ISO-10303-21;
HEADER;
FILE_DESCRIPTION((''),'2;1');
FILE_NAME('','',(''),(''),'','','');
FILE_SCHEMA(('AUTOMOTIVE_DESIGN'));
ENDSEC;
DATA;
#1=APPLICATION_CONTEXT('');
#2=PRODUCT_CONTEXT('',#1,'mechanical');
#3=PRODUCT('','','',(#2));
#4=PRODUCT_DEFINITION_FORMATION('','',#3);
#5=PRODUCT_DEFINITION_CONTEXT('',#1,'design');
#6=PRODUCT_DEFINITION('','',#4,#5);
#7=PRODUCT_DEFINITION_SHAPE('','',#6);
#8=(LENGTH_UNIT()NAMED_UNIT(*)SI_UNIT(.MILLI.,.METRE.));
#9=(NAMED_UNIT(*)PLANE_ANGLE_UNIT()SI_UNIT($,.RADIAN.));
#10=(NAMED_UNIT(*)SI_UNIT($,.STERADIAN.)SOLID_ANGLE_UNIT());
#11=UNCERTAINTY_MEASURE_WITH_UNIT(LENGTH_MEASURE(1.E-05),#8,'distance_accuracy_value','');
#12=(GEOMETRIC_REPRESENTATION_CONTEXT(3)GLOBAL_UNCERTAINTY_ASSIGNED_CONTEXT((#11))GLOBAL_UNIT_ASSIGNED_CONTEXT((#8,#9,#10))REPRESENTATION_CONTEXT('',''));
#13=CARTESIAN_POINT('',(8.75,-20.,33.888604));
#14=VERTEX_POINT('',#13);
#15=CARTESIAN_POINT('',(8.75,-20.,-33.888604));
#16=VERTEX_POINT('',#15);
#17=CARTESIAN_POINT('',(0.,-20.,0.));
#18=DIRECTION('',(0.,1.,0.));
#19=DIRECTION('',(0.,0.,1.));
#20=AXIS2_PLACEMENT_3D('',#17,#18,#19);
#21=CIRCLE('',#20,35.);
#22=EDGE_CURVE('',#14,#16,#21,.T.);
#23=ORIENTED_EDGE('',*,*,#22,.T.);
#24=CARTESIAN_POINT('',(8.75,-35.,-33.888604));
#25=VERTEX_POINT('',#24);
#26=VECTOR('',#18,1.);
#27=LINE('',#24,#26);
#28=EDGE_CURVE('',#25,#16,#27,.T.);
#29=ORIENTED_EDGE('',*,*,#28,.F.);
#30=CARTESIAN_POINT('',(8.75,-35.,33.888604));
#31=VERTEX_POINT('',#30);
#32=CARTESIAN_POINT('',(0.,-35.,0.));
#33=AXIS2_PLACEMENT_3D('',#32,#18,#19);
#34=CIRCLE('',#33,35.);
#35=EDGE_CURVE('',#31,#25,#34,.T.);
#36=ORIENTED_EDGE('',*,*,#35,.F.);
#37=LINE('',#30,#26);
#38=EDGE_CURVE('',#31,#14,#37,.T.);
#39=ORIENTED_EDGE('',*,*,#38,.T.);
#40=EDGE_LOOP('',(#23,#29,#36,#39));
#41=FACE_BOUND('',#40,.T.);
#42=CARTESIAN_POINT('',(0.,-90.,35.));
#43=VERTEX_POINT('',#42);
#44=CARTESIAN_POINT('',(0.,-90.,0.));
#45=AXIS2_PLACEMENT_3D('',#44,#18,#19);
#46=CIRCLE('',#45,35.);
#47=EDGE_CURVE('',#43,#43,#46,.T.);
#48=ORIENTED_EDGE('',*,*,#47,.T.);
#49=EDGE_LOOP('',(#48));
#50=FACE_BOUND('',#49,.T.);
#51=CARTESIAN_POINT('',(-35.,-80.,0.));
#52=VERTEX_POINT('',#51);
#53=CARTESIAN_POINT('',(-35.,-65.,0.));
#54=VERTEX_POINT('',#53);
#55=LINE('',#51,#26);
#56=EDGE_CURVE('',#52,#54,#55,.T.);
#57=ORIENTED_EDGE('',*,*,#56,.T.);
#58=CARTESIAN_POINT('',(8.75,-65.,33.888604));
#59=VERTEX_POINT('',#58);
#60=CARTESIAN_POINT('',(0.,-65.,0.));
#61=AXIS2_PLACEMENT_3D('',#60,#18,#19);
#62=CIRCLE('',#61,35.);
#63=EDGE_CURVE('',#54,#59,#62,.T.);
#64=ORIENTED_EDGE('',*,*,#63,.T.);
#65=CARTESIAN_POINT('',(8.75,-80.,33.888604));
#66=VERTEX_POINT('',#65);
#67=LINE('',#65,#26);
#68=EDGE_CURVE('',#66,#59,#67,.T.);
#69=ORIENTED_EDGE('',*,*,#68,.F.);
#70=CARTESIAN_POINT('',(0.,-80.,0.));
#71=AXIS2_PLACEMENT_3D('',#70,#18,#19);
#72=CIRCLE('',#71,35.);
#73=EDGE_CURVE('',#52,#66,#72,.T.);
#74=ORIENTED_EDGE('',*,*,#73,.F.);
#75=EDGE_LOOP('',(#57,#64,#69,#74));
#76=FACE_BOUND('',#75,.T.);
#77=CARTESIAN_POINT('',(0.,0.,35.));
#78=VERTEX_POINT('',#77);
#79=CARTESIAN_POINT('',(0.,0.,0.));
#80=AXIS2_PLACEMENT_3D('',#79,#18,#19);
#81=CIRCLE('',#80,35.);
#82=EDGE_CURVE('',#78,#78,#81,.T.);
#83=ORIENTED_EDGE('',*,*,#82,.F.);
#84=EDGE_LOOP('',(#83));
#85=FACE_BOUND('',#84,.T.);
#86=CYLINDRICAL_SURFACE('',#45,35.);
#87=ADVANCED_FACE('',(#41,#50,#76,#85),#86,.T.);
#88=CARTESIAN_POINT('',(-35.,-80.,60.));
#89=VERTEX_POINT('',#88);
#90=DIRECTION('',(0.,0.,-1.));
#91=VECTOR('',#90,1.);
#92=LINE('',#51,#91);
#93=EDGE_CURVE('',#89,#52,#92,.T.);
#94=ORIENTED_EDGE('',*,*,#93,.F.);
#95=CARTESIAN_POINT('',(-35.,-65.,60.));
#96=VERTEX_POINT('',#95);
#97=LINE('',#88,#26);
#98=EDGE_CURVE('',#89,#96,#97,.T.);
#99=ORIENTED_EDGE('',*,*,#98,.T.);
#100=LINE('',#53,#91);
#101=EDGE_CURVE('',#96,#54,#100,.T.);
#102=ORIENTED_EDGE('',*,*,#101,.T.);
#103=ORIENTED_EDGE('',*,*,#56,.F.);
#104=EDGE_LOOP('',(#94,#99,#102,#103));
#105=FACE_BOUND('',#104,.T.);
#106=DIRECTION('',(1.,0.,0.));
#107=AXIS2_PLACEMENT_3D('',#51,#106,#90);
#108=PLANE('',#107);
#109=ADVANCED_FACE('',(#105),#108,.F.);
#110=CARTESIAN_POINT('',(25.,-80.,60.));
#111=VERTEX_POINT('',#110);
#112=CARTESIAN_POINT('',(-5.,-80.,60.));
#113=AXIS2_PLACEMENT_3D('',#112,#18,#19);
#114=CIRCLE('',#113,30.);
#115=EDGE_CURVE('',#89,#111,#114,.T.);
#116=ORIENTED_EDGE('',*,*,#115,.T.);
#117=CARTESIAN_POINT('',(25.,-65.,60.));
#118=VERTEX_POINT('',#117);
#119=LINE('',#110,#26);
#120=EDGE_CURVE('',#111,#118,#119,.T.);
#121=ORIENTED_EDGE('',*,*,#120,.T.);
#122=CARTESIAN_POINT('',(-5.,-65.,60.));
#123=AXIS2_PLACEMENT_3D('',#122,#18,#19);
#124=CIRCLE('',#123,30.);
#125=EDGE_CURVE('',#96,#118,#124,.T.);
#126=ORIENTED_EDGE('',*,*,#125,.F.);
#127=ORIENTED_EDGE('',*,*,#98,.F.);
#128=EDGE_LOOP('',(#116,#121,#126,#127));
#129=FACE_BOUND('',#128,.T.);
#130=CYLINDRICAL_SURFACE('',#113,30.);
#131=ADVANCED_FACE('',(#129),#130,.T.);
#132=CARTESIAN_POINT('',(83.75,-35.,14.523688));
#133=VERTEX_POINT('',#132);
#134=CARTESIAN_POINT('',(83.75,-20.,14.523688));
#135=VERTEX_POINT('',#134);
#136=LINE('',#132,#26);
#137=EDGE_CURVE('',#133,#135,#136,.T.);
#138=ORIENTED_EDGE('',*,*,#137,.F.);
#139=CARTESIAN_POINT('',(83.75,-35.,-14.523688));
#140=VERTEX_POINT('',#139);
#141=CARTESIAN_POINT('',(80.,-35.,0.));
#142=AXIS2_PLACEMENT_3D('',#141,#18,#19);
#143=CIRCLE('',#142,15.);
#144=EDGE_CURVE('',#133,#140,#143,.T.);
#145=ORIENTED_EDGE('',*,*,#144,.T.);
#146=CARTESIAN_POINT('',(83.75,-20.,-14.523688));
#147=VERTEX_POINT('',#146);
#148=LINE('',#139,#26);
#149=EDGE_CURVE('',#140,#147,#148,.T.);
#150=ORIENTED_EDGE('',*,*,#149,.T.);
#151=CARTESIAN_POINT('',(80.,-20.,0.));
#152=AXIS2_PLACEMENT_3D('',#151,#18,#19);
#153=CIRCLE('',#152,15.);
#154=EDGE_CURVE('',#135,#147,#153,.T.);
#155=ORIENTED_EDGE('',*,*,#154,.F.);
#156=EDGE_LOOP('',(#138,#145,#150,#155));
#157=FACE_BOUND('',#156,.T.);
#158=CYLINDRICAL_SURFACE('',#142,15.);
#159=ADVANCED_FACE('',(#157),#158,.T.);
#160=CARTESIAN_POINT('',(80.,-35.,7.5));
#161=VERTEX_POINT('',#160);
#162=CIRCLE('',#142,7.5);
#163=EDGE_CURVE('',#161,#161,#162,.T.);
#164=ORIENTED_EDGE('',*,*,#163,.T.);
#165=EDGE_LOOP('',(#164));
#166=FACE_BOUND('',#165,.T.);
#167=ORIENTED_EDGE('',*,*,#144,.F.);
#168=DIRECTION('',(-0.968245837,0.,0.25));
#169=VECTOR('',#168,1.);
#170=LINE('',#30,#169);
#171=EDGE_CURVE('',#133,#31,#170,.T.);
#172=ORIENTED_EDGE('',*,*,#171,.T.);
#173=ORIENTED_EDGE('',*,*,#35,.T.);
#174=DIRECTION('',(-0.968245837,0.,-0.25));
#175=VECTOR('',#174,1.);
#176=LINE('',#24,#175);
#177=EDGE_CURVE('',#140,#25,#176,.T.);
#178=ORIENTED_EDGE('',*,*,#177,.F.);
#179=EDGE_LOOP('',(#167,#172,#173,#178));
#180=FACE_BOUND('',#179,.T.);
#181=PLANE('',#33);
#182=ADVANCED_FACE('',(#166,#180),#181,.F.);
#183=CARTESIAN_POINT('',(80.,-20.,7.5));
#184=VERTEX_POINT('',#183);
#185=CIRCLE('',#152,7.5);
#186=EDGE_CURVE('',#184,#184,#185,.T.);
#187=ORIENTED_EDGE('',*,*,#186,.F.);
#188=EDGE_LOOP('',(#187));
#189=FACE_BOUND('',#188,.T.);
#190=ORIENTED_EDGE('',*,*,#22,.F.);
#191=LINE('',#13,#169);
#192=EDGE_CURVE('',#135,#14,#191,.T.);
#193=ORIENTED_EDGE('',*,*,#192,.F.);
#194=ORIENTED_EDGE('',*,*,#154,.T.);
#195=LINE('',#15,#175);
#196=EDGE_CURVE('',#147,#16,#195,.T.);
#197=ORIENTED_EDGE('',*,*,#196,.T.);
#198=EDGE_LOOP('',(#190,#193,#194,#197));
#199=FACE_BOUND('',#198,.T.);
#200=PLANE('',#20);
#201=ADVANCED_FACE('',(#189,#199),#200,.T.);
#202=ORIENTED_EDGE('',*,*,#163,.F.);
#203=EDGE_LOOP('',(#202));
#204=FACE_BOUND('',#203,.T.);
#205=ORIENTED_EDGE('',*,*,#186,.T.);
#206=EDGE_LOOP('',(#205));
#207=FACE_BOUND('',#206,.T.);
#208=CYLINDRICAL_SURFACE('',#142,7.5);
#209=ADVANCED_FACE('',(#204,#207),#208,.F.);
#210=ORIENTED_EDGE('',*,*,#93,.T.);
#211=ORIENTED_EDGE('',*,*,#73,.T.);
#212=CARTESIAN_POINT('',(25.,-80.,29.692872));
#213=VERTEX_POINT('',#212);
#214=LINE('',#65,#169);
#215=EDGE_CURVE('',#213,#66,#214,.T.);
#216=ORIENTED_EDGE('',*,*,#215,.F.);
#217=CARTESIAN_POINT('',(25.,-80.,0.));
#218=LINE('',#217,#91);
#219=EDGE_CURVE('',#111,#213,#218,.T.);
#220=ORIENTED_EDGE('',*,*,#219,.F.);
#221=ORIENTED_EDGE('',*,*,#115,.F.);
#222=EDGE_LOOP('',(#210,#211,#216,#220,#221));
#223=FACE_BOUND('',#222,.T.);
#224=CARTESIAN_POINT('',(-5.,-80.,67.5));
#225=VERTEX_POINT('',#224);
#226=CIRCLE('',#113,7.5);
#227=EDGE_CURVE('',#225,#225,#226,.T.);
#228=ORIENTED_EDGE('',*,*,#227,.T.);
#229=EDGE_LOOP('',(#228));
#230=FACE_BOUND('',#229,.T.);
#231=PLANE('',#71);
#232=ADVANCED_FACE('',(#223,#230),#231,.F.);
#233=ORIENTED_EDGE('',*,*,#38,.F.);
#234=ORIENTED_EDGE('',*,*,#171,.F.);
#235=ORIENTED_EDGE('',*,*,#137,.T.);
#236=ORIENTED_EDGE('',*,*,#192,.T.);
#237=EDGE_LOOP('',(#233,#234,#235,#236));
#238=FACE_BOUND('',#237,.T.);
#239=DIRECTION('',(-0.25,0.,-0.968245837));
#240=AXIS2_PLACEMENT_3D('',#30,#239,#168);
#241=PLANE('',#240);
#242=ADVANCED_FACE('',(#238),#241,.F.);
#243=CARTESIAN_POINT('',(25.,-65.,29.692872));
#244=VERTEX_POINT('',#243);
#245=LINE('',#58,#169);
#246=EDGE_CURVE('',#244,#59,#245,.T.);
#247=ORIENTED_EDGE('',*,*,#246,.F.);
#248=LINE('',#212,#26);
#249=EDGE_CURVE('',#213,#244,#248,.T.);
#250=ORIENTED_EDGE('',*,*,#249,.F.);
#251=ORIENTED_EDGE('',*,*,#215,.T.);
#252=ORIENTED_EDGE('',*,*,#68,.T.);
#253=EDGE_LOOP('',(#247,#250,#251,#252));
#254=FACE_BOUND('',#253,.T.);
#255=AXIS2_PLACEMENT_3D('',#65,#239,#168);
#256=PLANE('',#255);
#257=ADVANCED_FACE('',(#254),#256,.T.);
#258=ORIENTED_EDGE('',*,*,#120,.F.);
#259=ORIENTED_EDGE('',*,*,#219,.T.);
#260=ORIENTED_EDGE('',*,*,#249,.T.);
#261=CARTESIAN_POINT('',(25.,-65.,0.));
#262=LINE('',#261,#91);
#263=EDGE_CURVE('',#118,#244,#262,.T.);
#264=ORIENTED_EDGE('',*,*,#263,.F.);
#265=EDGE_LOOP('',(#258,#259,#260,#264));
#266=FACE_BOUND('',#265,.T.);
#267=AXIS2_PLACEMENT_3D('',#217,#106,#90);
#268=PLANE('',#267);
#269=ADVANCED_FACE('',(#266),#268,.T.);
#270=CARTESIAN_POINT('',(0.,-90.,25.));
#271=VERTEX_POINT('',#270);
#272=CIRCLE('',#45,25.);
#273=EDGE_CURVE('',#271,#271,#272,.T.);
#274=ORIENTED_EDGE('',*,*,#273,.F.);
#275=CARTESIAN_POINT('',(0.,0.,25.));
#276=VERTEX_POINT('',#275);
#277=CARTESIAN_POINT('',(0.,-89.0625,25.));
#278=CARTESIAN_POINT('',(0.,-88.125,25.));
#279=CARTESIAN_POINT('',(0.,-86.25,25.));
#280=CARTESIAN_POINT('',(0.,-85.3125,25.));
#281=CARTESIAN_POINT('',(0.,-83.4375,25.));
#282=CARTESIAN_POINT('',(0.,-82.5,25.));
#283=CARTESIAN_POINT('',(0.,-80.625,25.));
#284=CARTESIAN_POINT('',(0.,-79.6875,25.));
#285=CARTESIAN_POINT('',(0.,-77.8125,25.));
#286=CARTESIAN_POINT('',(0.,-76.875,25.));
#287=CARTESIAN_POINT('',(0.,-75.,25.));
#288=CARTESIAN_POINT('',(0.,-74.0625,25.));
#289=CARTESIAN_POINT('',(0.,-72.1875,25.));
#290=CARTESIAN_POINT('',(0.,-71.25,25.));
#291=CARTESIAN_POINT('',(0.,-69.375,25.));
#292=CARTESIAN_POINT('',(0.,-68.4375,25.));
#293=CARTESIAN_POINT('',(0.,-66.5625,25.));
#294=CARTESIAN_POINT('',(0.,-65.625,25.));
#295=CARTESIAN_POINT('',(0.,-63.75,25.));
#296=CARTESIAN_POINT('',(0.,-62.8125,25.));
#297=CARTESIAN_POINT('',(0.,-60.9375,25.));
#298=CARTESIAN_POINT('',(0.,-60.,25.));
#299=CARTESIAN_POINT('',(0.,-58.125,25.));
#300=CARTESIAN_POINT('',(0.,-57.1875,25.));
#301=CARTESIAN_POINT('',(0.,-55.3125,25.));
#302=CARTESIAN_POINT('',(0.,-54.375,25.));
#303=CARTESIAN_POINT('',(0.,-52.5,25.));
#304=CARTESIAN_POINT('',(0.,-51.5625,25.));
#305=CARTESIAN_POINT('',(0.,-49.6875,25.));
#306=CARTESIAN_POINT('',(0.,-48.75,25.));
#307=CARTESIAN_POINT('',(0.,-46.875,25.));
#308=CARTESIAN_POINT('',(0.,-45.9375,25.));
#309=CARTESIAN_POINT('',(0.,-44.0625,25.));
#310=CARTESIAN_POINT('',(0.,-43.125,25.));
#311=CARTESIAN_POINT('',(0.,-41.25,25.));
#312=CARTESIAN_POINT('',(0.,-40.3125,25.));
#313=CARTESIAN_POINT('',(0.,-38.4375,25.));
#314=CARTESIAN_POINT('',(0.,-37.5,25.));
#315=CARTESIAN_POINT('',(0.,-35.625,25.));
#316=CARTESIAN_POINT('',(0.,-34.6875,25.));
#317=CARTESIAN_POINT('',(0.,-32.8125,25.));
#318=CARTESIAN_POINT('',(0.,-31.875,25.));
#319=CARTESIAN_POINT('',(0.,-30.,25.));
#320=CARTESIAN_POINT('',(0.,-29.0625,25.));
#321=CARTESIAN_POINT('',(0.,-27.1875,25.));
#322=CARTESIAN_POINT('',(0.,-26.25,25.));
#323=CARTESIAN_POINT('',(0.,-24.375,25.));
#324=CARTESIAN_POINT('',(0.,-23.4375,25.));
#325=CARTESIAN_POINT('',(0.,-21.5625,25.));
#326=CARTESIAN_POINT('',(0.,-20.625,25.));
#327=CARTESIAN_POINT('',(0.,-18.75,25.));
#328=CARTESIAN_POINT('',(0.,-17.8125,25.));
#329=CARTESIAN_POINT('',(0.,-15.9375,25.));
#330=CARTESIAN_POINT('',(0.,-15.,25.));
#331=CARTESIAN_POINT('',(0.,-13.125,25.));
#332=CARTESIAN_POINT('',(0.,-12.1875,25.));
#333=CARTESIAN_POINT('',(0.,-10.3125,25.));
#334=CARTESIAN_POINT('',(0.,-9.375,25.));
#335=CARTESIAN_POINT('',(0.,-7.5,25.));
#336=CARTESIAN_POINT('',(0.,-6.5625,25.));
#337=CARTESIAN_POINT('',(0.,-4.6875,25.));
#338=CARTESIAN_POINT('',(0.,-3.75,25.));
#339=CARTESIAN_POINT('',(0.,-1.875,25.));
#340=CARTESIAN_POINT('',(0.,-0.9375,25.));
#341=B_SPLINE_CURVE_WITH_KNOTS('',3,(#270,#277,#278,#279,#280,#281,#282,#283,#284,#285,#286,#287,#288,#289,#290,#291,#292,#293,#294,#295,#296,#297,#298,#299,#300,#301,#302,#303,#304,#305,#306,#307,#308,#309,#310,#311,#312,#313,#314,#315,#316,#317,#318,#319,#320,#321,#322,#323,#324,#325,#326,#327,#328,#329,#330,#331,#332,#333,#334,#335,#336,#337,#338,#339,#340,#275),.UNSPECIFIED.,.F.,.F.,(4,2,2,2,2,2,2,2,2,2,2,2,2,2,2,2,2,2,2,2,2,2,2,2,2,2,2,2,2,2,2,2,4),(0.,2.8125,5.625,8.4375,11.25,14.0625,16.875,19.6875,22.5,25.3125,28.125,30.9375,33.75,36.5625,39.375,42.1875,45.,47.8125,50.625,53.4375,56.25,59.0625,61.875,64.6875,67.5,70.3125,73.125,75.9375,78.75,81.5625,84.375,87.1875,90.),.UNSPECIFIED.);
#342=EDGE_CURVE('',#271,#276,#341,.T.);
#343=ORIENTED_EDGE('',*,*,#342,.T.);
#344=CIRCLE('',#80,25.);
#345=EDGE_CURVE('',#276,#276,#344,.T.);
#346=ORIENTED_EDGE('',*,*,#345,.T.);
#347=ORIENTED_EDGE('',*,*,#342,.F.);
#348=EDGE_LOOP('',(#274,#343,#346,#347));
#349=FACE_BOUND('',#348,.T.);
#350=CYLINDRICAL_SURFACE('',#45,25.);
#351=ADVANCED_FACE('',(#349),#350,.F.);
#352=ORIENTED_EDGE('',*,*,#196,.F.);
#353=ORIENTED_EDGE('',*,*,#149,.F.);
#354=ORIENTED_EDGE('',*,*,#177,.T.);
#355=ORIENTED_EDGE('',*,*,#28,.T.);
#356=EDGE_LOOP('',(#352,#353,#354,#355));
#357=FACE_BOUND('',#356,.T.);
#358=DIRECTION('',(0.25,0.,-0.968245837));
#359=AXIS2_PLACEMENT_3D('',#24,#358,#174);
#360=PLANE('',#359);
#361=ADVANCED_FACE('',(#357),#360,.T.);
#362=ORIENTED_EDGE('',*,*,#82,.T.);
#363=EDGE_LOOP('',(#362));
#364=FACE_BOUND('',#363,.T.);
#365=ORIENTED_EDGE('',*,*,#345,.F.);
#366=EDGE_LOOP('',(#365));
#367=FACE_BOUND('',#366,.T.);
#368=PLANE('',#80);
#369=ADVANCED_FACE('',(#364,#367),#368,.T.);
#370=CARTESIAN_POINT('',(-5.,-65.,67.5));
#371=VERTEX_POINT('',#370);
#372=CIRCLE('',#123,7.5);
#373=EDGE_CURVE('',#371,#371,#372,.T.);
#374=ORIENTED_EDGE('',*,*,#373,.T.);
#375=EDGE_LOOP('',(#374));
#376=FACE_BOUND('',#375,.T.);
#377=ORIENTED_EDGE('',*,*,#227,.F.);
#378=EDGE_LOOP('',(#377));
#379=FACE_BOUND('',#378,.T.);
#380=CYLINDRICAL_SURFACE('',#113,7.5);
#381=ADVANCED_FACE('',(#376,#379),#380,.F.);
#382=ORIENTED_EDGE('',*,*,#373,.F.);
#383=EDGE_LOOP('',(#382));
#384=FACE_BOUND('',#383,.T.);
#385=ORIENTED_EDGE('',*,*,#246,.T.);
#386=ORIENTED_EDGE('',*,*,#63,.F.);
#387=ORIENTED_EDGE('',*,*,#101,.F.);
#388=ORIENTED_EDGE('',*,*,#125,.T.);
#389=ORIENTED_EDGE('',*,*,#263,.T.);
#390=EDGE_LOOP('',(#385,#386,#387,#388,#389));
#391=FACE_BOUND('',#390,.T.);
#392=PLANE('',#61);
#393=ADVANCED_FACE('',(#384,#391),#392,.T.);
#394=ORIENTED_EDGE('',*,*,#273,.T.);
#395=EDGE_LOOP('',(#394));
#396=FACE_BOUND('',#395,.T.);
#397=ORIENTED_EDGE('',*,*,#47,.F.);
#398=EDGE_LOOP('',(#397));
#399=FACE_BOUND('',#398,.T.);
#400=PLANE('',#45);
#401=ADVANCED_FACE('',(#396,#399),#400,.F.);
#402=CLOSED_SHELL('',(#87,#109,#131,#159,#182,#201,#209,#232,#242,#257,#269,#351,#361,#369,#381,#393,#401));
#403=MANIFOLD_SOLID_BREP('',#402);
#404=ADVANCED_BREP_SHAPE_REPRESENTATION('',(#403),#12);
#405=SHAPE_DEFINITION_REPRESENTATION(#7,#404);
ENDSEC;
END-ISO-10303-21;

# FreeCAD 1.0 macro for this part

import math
import FreeCAD as App
import Part
import Sketcher

doc = App.newDocument("Part")
body = doc.addObject("PartDesign::Body", "Body")

# Sketch on XZ plane
sketch1 = body.newObject("Sketcher::SketchObject", "Sketch")
sketch1.AttachmentSupport = (doc.getObject("XZ_Plane"), [""])
sketch1.MapMode = "FlatFace"
sketch1.addGeometry([
    Part.Circle(App.Vector(0, 0, 0), App.Vector(0, 0, 1), 35),
    Part.Circle(App.Vector(0, 0, 0), App.Vector(0, 0, 1), 25),
], False)
sketch1.addConstraint([
    Sketcher.Constraint("Coincident", 0, 3, -1, 1),
    Sketcher.Constraint("Coincident", 1, 3, -1, 1),
    Sketcher.Constraint("Diameter", 0, 70.0),
    Sketcher.Constraint("Diameter", 1, 50.0),
])
pad1 = body.newObject("PartDesign::Pad", "Pad")
pad1.Profile = sketch1
pad1.Length = 90

# Sketch on XZ plane
sketch2 = body.newObject("Sketcher::SketchObject", "Sketch001")
sketch2.AttachmentSupport = (doc.getObject("XZ_Plane"), [""])
sketch2.MapMode = "FlatFace"
sketch2.AttachmentOffset = App.Placement(App.Vector(0, 0, 20), App.Rotation())
sketch2.addGeometry([
    Part.LineSegment(App.Vector(84, -15, 0), App.Vector(9, -34, 0)),  # 0
    Part.ArcOfCircle(Part.Circle(App.Vector(0, 0, 0), App.Vector(0, 0, 1), 35), math.radians(-76), math.radians(0)),  # 1
    Part.ArcOfCircle(Part.Circle(App.Vector(0, 0, 0), App.Vector(0, 0, 1), 35), math.radians(0), math.radians(44)),  # 2
    Part.ArcOfCircle(Part.Circle(App.Vector(0, 0, 0), App.Vector(0, 0, 1), 35), math.radians(44), math.radians(76)),  # 3
    Part.LineSegment(App.Vector(9, 34, 0), App.Vector(25, 30, 0)),  # 4
    Part.LineSegment(App.Vector(25, 30, 0), App.Vector(84, 15, 0)),  # 5
    Part.ArcOfCircle(Part.Circle(App.Vector(80, 0, 0), App.Vector(0, 0, 1), 15), math.radians(-76), math.radians(76)),  # 6
    Part.Circle(App.Vector(80, 0, 0), App.Vector(0, 0, 1), 8),  # 7
], False)
sketch2.addConstraint([
    Sketcher.Constraint("Tangent", 0, 2, 1, 1),
    Sketcher.Constraint("Tangent", 1, 2, 2, 1),
    Sketcher.Constraint("Tangent", 2, 2, 3, 1),
    Sketcher.Constraint("Tangent", 3, 2, 4, 1),
    Sketcher.Constraint("Coincident", 4, 2, 5, 1),
    Sketcher.Constraint("Tangent", 5, 2, 6, 2),
    Sketcher.Constraint("Tangent", 6, 1, 0, 1),
    Sketcher.Constraint("Coincident", 1, 3, -1, 1),
    Sketcher.Constraint("Coincident", 3, 3, -1, 1),
    Sketcher.Constraint("Coincident", 7, 3, 6, 3),
    Sketcher.Constraint("Symmetric", 5, 2, 6, 1, -1),
    Sketcher.Constraint("PointOnObject", 1, 2, -1),
    Sketcher.Constraint("Vertical", 2, 2, 4, 2),
    Sketcher.Constraint("Diameter", 7, 15.0),
    Sketcher.Constraint("Radius", 1, 35.0),
    Sketcher.Constraint("Radius", 6, 15.0),
    Sketcher.Constraint("DistanceX", -1, 1, 6, 3, 80.0),
    Sketcher.Constraint("DistanceX", -1, 1, 2, 2, 25.0),
])
pad2 = body.newObject("PartDesign::Pad", "Pad001")
pad2.Profile = sketch2
pad2.Length = 15

# Sketch on XZ plane
sketch3 = body.newObject("Sketcher::SketchObject", "Sketch002")
sketch3.AttachmentSupport = (doc.getObject("XZ_Plane"), [""])
sketch3.MapMode = "FlatFace"
sketch3.AttachmentOffset = App.Placement(App.Vector(0, 0, 65), App.Rotation())
sketch3.addGeometry([
    Part.ArcOfCircle(Part.Circle(App.Vector(-5, 60, 0), App.Vector(0, 0, 1), 30), math.radians(0), math.radians(180)),  # 0
    Part.LineSegment(App.Vector(25, 60, 0), App.Vector(25, 30, 0)),  # 1
    Part.LineSegment(App.Vector(25, 30, 0), App.Vector(9, 34, 0)),  # 2
    Part.ArcOfCircle(Part.Circle(App.Vector(0, 0, 0), App.Vector(0, 0, 1), 35), math.radians(76), math.radians(180)),  # 3
    Part.LineSegment(App.Vector(-35, 0, 0), App.Vector(-35, 60, 0)),  # 4
    Part.Circle(App.Vector(-5, 60, 0), App.Vector(0, 0, 1), 8),  # 5
], False)
sketch3.addConstraint([
    Sketcher.Constraint("Tangent", 0, 1, 1, 1),
    Sketcher.Constraint("Coincident", 1, 2, 2, 1),
    Sketcher.Constraint("Tangent", 2, 2, 3, 1),
    Sketcher.Constraint("Tangent", 3, 2, 4, 1),
    Sketcher.Constraint("Tangent", 4, 2, 0, 2),
    Sketcher.Constraint("Vertical", 1),
    Sketcher.Constraint("Vertical", 4),
    Sketcher.Constraint("Coincident", 3, 3, -1, 1),
    Sketcher.Constraint("Coincident", 5, 3, 0, 3),
    Sketcher.Constraint("Diameter", 5, 15.0),
    Sketcher.Constraint("Radius", 0, 30.0),
    Sketcher.Constraint("Radius", 3, 35.0),
    Sketcher.Constraint("DistanceY", 4, 1, 4, 2, 60.0),
    Sketcher.Constraint("DistanceX", -1, 1, 2, 2, 8.75),
])
pad3 = body.newObject("PartDesign::Pad", "Pad002")
pad3.Profile = sketch3
pad3.Length = 15

doc.recompute()
